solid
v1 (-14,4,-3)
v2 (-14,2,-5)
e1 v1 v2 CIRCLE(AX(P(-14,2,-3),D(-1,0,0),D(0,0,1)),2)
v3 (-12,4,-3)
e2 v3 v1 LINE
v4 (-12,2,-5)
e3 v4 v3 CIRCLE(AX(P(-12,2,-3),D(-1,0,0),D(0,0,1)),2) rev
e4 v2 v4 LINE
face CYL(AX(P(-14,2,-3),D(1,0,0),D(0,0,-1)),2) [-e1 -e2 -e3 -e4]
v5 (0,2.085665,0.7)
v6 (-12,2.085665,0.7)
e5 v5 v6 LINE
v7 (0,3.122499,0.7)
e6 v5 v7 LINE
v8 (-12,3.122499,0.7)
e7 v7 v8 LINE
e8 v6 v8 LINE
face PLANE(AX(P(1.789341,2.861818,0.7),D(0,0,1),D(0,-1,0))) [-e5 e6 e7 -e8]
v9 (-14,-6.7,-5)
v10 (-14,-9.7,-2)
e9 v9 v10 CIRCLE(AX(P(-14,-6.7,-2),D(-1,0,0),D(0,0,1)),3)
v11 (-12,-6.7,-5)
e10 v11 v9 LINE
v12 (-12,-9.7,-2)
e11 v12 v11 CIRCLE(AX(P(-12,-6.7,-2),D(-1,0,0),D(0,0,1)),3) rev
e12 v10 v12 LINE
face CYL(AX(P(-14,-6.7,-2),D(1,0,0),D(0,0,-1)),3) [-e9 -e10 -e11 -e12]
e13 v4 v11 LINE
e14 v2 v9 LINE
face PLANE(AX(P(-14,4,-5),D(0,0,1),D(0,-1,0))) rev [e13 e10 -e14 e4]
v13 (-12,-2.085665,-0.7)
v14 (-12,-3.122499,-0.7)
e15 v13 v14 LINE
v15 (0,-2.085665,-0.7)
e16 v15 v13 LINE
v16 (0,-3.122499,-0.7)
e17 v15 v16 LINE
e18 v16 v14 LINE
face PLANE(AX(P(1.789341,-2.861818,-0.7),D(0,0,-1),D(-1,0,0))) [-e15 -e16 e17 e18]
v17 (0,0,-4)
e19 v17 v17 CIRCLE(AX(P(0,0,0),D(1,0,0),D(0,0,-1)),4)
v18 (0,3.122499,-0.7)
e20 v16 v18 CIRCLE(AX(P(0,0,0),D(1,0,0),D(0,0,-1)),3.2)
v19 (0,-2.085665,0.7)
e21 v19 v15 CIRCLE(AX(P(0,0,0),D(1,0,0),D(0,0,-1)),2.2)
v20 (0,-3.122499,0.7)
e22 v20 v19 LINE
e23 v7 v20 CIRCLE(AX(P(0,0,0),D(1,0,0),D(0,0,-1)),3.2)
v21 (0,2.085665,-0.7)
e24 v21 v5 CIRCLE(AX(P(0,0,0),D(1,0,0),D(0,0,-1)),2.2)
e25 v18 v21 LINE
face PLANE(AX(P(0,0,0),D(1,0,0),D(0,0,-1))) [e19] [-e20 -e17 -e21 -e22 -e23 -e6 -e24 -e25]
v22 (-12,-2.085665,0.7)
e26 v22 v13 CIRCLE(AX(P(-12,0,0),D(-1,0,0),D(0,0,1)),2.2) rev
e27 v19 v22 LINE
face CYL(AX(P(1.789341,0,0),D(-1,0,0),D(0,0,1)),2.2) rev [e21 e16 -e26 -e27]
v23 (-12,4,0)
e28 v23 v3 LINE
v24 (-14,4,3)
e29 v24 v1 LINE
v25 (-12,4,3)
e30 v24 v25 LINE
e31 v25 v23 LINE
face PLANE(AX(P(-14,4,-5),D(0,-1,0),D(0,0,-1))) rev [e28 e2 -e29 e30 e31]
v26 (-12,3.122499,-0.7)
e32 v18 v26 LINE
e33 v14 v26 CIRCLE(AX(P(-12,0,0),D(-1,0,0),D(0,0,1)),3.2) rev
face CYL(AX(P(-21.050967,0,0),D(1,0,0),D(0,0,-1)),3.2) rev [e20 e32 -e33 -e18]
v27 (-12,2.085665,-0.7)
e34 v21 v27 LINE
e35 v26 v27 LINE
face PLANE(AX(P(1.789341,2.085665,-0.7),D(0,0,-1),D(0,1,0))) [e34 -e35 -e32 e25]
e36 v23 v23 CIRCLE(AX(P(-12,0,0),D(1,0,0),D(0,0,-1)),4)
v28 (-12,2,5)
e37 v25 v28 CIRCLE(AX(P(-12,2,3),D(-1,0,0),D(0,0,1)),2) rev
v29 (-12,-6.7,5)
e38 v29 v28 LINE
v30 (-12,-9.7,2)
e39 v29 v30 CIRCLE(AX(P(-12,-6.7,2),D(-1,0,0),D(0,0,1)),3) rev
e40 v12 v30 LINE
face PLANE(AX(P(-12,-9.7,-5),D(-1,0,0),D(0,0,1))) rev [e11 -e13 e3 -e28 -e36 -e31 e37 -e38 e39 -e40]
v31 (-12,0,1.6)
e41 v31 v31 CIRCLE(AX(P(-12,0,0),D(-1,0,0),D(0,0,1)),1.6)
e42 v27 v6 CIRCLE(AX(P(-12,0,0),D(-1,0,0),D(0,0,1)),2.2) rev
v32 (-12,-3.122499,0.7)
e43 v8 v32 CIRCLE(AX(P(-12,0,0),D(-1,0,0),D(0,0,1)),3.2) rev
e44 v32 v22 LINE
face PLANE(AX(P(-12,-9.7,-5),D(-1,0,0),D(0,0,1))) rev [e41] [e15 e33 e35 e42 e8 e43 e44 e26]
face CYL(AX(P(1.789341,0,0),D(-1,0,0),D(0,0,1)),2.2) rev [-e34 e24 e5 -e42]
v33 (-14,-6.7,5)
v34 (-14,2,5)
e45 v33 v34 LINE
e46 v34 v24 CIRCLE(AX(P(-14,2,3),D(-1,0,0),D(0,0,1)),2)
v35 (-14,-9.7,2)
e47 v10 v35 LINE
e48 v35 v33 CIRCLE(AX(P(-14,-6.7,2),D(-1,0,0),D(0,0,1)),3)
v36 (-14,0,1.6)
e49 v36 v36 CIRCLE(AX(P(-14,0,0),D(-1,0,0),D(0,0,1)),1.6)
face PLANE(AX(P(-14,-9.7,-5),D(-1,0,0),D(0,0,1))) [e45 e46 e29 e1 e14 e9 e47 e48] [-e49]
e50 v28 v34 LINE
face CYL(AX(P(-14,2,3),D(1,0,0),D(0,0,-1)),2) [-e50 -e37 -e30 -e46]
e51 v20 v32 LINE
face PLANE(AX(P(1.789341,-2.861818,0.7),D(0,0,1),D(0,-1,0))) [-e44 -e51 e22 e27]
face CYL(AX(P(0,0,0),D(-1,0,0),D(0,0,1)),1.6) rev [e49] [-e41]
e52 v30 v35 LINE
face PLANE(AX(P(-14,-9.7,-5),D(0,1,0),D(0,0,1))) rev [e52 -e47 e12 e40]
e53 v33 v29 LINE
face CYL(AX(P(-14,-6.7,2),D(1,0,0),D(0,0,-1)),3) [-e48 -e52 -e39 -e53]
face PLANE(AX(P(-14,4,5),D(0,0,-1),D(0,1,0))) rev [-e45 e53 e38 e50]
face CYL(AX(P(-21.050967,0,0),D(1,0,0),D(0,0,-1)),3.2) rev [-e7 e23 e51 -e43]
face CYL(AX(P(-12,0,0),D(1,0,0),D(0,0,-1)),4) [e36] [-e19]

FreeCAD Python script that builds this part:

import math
import FreeCAD as App
import Part
import Sketcher
from FreeCAD import Vector


def edges_at(feature, points):
    """Names of the edges that pass closest to the given points."""
    edges = feature.Shape.Edges
    near = lambda p: min(range(len(edges)), key=lambda i: edges[i].distToShape(Part.Vertex(*p))[0])
    return sorted({f"Edge{near(p) + 1}" for p in points})


def add_polygon(sketch, points):
    """Adds a closed chain of lines whose ends are joined by coincident constraints."""
    first, n = sketch.GeometryCount, len(points)
    for a, b in zip(points, points[1:] + points[:1]):
        sketch.addGeometry(Part.LineSegment(App.Vector(*a, 0), App.Vector(*b, 0)), False)
    for i in range(n):
        sketch.addConstraint(Sketcher.Constraint("Coincident", first + i, 2, first + (i + 1) % n, 1))

doc = App.newDocument("Part")
body = doc.addObject("PartDesign::Body", "Body")

# Sketch on YZ plane
sketch1 = body.newObject("Sketcher::SketchObject", "Sketch")
sketch1.AttachmentSupport = (doc.getObject("YZ_Plane"), [""])
sketch1.MapMode = "FlatFace"
sketch1.addGeometry(Part.Circle(Vector(0, 0, 0), Vector(0, 0, 1), 4), False)
sketch1.addConstraint([
    Sketcher.Constraint("Coincident", 0, 3, -1, 1),
    Sketcher.Constraint("Diameter", 0, 8.0),
])
pad1 = body.newObject("PartDesign::Pad", "Pad")
pad1.Profile = sketch1
pad1.Length = 12
pad1.Reversed = True

# Sketch on YZ plane
sketch2 = body.newObject("Sketcher::SketchObject", "Sketch001")
sketch2.AttachmentSupport = (doc.getObject("YZ_Plane"), [""])
sketch2.MapMode = "FlatFace"
sketch2.AttachmentOffset = App.Placement(Vector(0, 0, -12), App.Rotation())
add_polygon(sketch2, [(4, -5), (-10, -5), (-10, 5), (4, 5)])  # lines 0-3
sketch2.addConstraint([
    Sketcher.Constraint("Horizontal", 0),
    Sketcher.Constraint("Vertical", 1),
    Sketcher.Constraint("Horizontal", 2),
    Sketcher.Constraint("Vertical", 3),
    Sketcher.Constraint("DistanceY", 1, 1, 1, 2, 10.0),
    Sketcher.Constraint("DistanceX", 0, 2, 0, 1, 13.7),
    Sketcher.Constraint("DistanceY", 0, 2, -1, 1, 5.0),
    Sketcher.Constraint("DistanceX", -1, 1, 2, 2, 4.0),
])
pad2 = body.newObject("PartDesign::Pad", "Pad001")
pad2.Profile = sketch2
pad2.Length = 2
pad2.Reversed = True

# Sketch on YZ plane
sketch3 = body.newObject("Sketcher::SketchObject", "Sketch002")
sketch3.AttachmentSupport = (doc.getObject("YZ_Plane"), [""])
sketch3.MapMode = "FlatFace"
sketch3.addGeometry(Part.Circle(Vector(0, 0, 0), Vector(0, 0, 1), 3.2), False)
sketch3.addConstraint([
    Sketcher.Constraint("Coincident", 0, 3, -1, 1),
    Sketcher.Constraint("Diameter", 0, 6.4),
])
pocket1 = body.newObject("PartDesign::Pocket", "Pocket")
pocket1.Profile = sketch3
pocket1.Length = 12

# Sketch on YZ plane
sketch4 = body.newObject("Sketcher::SketchObject", "Sketch003")
sketch4.AttachmentSupport = (doc.getObject("YZ_Plane"), [""])
sketch4.MapMode = "FlatFace"
sketch4.AttachmentOffset = App.Placement(Vector(0, 0, -14), App.Rotation())
sketch4.addGeometry(Part.Circle(Vector(0, 0, 0), Vector(0, 0, 1), 1.6), False)
sketch4.addConstraint([
    Sketcher.Constraint("Coincident", 0, 3, -1, 1),
    Sketcher.Constraint("Diameter", 0, 3.2),
])
pocket2 = body.newObject("PartDesign::Pocket", "Pocket001")
pocket2.Profile = sketch4
pocket2.Type = "ThroughAll"
pocket2.Reversed = True

# Sketch on YZ plane
sketch5 = body.newObject("Sketcher::SketchObject", "Sketch004")
sketch5.AttachmentSupport = (doc.getObject("YZ_Plane"), [""])
sketch5.MapMode = "FlatFace"
sketch5.addGeometry([
    Part.ArcOfCircle(Part.Circle(Vector(0, 0, 0), Vector(0, 0, 1), 2.2), math.radians(161), math.radians(199)),  # 0
    Part.LineSegment(Vector(-2.1, -0.7, 0), Vector(-3.1, -0.7, 0)),  # 1
    Part.ArcOfCircle(Part.Circle(Vector(0, 0, 0), Vector(0, 0, 1), 3.2), math.radians(167), math.radians(193)),  # 2
    Part.LineSegment(Vector(-3.1, 0.7, 0), Vector(-2.1, 0.7, 0)),  # 3
    Part.LineSegment(Vector(3.1, -0.7, 0), Vector(2.1, -0.7, 0)),  # 4
    Part.ArcOfCircle(Part.Circle(Vector(0, 0, 0), Vector(0, 0, 1), 2.2), math.radians(-19), math.radians(19)),  # 5
    Part.LineSegment(Vector(2.1, 0.7, 0), Vector(3.1, 0.7, 0)),  # 6
    Part.ArcOfCircle(Part.Circle(Vector(0, 0, 0), Vector(0, 0, 1), 3.2), math.radians(-13), math.radians(13)),  # 7
], False)
sketch5.addConstraint([
    Sketcher.Constraint("Coincident", 0, 2, 1, 1),
    Sketcher.Constraint("Coincident", 1, 2, 2, 2),
    Sketcher.Constraint("Coincident", 2, 1, 3, 1),
    Sketcher.Constraint("Coincident", 3, 2, 0, 1),
    Sketcher.Constraint("Coincident", 4, 2, 5, 1),
    Sketcher.Constraint("Coincident", 5, 2, 6, 1),
    Sketcher.Constraint("Coincident", 6, 2, 7, 2),
    Sketcher.Constraint("Coincident", 7, 1, 4, 1),
    Sketcher.Constraint("Horizontal", 1),
    Sketcher.Constraint("Horizontal", 3),
    Sketcher.Constraint("Horizontal", 4),
    Sketcher.Constraint("Horizontal", 6),
    Sketcher.Constraint("Coincident", 0, 3, -1, 1),
    Sketcher.Constraint("Coincident", 2, 3, -1, 1),
    Sketcher.Constraint("Coincident", 5, 3, -1, 1),
    Sketcher.Constraint("Coincident", 7, 3, -1, 1),
    Sketcher.Constraint("Equal", 0, 5),
    Sketcher.Constraint("Equal", 2, 7),
    Sketcher.Constraint("Horizontal", 1, 2, 4, 2),
    Sketcher.Constraint("Horizontal", 3, 2, 5, 2),
    Sketcher.Constraint("Vertical", 1, 2, 2, 1),
    Sketcher.Constraint("Radius", 0, 2.2),
    Sketcher.Constraint("Radius", 2, 3.2),
    Sketcher.Constraint("DistanceY", 0, 2, -1, 1, 0.7),
])
pad3 = body.newObject("PartDesign::Pad", "Pad002")
pad3.Profile = sketch5
pad3.Length = 14
pad3.Reversed = True
doc.recompute()

fillet = body.newObject("PartDesign::Fillet", "Fillet")
fillet.Base = (pad3, edges_at(pad3, [(-13, 4, -5), (-13, 4, 5)]))
fillet.Radius = 2
doc.recompute()

fillet2 = body.newObject("PartDesign::Fillet", "Fillet001")
fillet2.Base = (fillet, edges_at(fillet, [(-13, -9.7, -5), (-13, -9.7, 5)]))
fillet2.Radius = 3

doc.recompute()
